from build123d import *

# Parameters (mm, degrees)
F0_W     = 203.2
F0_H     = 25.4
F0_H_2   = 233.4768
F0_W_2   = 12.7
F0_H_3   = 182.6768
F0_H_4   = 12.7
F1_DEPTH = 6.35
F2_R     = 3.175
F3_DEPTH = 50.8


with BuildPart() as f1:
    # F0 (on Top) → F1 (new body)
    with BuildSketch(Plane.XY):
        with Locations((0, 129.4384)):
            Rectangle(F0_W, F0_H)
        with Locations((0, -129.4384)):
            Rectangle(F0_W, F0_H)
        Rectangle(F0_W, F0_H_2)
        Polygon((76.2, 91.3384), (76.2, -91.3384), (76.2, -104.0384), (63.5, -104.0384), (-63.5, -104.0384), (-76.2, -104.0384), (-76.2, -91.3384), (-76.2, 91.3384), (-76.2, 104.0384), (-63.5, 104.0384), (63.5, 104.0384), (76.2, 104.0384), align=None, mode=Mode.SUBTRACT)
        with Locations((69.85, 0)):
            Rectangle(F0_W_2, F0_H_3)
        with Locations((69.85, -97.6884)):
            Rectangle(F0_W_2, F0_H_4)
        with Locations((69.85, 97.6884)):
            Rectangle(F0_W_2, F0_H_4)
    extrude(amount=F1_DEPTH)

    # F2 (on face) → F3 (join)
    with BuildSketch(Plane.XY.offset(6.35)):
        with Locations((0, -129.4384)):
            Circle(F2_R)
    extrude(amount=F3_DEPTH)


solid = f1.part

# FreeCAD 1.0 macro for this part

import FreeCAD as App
import Part
import Sketcher
Q = App.Units.Quantity

doc = App.newDocument("Part")
body = doc.addObject("PartDesign::Body", "Body")

sketch1 = body.newObject("Sketcher::SketchObject", "Sketch")
sketch1.AttachmentSupport = (doc.getObject("XY_Plane"), [""])
sketch1.MapMode = "FlatFace"
sketch1.addGeometry([
    Part.LineSegment(App.Vector(-101.6, 142.1384, 0), App.Vector(-101.6, -142.1384, 0)),
    Part.LineSegment(App.Vector(-101.6, -142.1384, 0), App.Vector(101.6, -142.1384, 0)),
    Part.LineSegment(App.Vector(101.6, -142.1384, 0), App.Vector(101.6, 142.1384, 0)),
    Part.LineSegment(App.Vector(101.6, 142.1384, 0), App.Vector(-101.6, 142.1384, 0)),
    Part.LineSegment(App.Vector(63.5, -104.0384, 0), App.Vector(-76.2, -104.0384, 0)),
    Part.LineSegment(App.Vector(-76.2, -104.0384, 0), App.Vector(-76.2, 104.0384, 0)),
    Part.LineSegment(App.Vector(-76.2, 104.0384, 0), App.Vector(63.5, 104.0384, 0)),
    Part.LineSegment(App.Vector(63.5, 104.0384, 0), App.Vector(63.5, -104.0384, 0)),
], False)
sketch1.addConstraint([
    Sketcher.Constraint("Coincident", 0, 2, 1, 1),
    Sketcher.Constraint("Coincident", 1, 2, 2, 1),
    Sketcher.Constraint("Coincident", 2, 2, 3, 1),
    Sketcher.Constraint("Coincident", 3, 2, 0, 1),
    Sketcher.Constraint("Coincident", 4, 2, 5, 1),
    Sketcher.Constraint("Coincident", 5, 2, 6, 1),
    Sketcher.Constraint("Coincident", 6, 2, 7, 1),
    Sketcher.Constraint("Coincident", 7, 2, 4, 1),
    Sketcher.Constraint("Vertical", 0),
    Sketcher.Constraint("Horizontal", 1),
    Sketcher.Constraint("Vertical", 2),
    Sketcher.Constraint("Horizontal", 3),
    Sketcher.Constraint("Horizontal", 4),
    Sketcher.Constraint("Vertical", 5),
    Sketcher.Constraint("Horizontal", 6),
    Sketcher.Constraint("Vertical", 7),
    Sketcher.Constraint("Symmetric", 0, 2, 2, 2, -1, 1),
    Sketcher.Constraint("DistanceX", 1, 1, 1, 2, Q("8 in")),
    Sketcher.Constraint("DistanceX", 4, 2, 4, 1, Q("5.5 in")),
    Sketcher.Constraint("DistanceX", 4, 2, -1, 1, Q("3 in")),
    Sketcher.Constraint("DistanceY", 0, 2, 4, 2, Q("1.5 in")),
    Sketcher.Constraint("DistanceY", 5, 2, 3, 2, Q("1.5 in")),
    Sketcher.Constraint("DistanceY", 0, 2, 0, 1, Q("11.192 in")),
])
pad1 = body.newObject("PartDesign::Pad", "Pad")
pad1.Profile = sketch1
pad1.Length = Q("0.25 in")

sketch2 = body.newObject("Sketcher::SketchObject", "Sketch001")
sketch2.AttachmentSupport = (doc.getObject("XY_Plane"), [""])
sketch2.MapMode = "FlatFace"
sketch2.AttachmentOffset = App.Placement(App.Vector(0, 0, 0.25 * 25.4), App.Rotation())
sketch2.addGeometry(Part.Circle(App.Vector(0, -129.4384, 0), App.Vector(0, 0, 1), 3.175), False)
sketch2.addConstraint([
    Sketcher.Constraint("PointOnObject", 0, 3, -2),
    Sketcher.Constraint("Diameter", 0, Q("0.25 in")),
    Sketcher.Constraint("DistanceY", 0, 3, -1, 1, Q("5.096 in")),
])
pad2 = body.newObject("PartDesign::Pad", "Pad001")
pad2.Profile = sketch2
pad2.Length = Q("2 in")

doc.recompute()
